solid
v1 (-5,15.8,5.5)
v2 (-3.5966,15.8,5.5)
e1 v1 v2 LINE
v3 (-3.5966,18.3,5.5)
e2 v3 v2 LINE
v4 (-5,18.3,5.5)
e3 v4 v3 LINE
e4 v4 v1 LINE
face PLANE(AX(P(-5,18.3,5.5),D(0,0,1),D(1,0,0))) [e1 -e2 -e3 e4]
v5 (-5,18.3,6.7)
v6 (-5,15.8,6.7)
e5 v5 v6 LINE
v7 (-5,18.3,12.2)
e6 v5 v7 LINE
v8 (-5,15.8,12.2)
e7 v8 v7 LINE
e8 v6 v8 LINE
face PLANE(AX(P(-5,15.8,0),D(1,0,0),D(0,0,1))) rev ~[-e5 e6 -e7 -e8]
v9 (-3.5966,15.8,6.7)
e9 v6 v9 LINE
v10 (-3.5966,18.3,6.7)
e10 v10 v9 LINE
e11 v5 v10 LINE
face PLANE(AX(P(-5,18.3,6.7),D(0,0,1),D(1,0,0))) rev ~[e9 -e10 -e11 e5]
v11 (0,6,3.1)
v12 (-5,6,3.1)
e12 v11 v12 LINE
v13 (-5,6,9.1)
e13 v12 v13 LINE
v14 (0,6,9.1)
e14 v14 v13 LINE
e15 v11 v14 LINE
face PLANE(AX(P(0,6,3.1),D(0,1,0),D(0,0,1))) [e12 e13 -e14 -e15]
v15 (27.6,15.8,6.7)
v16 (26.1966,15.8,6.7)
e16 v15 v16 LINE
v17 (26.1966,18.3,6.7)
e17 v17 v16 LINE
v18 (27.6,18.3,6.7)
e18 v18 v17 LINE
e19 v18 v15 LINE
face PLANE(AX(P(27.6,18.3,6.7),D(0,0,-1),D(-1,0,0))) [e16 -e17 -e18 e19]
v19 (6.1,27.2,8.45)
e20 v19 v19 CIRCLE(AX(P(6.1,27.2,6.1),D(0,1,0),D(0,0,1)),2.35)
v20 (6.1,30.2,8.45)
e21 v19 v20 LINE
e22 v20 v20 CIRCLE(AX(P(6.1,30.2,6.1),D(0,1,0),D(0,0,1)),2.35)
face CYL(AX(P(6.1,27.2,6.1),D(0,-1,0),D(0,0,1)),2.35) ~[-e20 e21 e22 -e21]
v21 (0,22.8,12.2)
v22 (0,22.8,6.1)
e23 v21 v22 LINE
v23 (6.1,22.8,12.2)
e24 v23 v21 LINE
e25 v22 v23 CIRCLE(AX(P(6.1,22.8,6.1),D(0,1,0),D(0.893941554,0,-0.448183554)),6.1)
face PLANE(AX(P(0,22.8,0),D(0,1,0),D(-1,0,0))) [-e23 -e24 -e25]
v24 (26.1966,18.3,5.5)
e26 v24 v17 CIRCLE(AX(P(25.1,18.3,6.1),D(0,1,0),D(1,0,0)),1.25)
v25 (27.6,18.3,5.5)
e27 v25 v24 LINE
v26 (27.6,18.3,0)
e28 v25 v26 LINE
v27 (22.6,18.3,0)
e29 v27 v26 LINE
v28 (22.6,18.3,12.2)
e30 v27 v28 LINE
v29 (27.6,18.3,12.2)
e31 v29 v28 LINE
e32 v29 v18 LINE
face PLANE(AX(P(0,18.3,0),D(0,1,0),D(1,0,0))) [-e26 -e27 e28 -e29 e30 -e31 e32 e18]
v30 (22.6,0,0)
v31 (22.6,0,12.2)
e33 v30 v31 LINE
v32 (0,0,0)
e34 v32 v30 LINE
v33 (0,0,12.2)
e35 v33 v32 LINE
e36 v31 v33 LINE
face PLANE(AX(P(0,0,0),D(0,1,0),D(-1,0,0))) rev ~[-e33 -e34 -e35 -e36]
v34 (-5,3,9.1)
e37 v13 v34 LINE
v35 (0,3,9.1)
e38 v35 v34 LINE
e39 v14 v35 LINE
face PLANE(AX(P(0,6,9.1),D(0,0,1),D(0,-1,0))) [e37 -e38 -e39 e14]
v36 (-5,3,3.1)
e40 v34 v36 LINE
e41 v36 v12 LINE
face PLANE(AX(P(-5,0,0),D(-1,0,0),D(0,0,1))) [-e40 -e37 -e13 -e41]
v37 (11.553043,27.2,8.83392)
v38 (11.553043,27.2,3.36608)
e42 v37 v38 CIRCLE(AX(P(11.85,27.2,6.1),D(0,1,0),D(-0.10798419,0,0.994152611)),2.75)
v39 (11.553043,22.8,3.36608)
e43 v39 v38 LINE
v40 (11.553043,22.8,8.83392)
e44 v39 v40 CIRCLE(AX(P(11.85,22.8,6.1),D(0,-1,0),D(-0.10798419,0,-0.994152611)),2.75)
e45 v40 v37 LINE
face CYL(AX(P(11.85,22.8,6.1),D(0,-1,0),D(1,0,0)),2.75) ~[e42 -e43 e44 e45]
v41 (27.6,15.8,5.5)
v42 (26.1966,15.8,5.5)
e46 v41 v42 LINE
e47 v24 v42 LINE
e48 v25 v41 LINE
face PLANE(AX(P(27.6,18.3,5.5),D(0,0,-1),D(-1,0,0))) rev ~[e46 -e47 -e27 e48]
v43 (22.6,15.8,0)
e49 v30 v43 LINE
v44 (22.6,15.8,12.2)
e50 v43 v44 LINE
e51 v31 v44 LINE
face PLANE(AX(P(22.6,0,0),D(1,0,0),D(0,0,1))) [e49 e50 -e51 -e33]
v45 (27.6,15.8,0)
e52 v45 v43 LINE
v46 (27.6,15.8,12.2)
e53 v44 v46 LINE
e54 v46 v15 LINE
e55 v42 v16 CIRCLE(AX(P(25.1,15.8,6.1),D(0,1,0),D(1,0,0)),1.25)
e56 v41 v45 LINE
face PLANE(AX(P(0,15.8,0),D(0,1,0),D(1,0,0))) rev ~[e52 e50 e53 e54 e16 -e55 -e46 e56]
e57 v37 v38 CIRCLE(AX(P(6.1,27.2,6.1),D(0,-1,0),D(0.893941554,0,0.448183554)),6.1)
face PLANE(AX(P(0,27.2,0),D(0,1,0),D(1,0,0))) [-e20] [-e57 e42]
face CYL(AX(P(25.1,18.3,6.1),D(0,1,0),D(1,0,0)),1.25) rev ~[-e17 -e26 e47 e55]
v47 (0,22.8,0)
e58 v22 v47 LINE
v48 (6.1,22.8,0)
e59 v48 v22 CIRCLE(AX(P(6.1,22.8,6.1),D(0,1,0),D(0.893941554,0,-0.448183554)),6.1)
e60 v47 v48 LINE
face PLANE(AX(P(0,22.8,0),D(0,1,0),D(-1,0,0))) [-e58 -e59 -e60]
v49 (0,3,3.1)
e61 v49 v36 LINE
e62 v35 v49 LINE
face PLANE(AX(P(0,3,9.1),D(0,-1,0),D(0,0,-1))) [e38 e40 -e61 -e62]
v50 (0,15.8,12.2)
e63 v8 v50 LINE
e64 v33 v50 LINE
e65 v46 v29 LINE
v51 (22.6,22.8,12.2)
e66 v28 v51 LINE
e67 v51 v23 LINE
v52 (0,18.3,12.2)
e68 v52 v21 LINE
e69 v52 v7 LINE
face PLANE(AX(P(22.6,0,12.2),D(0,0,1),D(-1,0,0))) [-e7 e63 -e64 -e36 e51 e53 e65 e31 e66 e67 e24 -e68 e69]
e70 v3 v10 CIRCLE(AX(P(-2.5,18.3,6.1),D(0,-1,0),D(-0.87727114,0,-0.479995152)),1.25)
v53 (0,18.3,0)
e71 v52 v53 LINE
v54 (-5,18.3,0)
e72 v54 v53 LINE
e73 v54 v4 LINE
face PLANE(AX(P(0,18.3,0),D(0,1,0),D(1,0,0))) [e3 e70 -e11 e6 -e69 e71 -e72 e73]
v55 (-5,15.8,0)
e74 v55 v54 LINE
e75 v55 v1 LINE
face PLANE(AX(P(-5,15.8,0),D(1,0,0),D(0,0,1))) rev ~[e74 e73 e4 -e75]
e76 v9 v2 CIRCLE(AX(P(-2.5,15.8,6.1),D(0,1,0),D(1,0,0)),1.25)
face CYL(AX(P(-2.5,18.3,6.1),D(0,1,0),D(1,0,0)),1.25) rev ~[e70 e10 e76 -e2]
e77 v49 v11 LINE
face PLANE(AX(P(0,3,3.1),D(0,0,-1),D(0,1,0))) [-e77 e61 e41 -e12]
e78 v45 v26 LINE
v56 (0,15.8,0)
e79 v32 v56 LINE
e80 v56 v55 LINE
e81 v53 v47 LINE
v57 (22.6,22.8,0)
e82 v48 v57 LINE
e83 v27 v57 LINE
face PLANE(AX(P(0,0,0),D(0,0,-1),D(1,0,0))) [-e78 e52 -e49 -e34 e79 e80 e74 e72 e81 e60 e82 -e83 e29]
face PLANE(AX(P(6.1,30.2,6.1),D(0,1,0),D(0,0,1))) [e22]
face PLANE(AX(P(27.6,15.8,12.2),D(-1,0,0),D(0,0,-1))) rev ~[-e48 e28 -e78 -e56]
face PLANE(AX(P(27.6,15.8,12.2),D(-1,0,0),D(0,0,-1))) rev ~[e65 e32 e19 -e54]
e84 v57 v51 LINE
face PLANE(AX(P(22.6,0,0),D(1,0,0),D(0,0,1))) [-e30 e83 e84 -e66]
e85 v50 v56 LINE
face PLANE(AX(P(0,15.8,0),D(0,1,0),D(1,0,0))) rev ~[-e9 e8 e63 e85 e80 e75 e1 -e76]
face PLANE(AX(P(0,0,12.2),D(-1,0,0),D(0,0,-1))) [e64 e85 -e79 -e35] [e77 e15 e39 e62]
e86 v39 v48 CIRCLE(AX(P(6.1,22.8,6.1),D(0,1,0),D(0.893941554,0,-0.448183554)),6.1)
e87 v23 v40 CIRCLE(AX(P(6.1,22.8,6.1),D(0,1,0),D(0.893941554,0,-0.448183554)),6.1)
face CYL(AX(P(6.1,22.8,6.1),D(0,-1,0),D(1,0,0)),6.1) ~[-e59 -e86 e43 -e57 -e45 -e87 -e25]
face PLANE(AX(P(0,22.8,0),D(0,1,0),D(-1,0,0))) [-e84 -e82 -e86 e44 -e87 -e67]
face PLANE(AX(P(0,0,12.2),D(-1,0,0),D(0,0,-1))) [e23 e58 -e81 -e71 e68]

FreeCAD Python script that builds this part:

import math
import FreeCAD as App
import Part
import Sketcher

doc = App.newDocument("Part")
body = doc.addObject("PartDesign::Body", "Body")

# Sketch on XZ plane
sketch1 = body.newObject("Sketcher::SketchObject", "Sketch")
sketch1.AttachmentSupport = (doc.getObject("XZ_Plane"), [""])
sketch1.MapMode = "FlatFace"
sketch1.addGeometry(Part.LineSegment(App.Vector(23, 0, 0), App.Vector(0, 0, 0)), False)
sketch1.addGeometry(Part.LineSegment(App.Vector(0, 0, 0), App.Vector(0, 12, 0)), False)
sketch1.addGeometry(Part.LineSegment(App.Vector(0, 12, 0), App.Vector(23, 12, 0)), False)
sketch1.addGeometry(Part.LineSegment(App.Vector(23, 12, 0), App.Vector(23, 0, 0)), False)
sketch1.addConstraint(Sketcher.Constraint("Coincident", 0, 2, 1, 1))
sketch1.addConstraint(Sketcher.Constraint("Coincident", 1, 2, 2, 1))
sketch1.addConstraint(Sketcher.Constraint("Coincident", 2, 2, 3, 1))
sketch1.addConstraint(Sketcher.Constraint("Coincident", 3, 2, 0, 1))
sketch1.addConstraint(Sketcher.Constraint("Horizontal", 0))
sketch1.addConstraint(Sketcher.Constraint("Vertical", 1))
sketch1.addConstraint(Sketcher.Constraint("Horizontal", 2))
sketch1.addConstraint(Sketcher.Constraint("Vertical", 3))
sketch1.addConstraint(Sketcher.Constraint("Coincident", 0, 2, -1, 1))
sketch1.addConstraint(Sketcher.Constraint("DistanceX", 0, 2, 0, 1, 22.6))
sketch1.addConstraint(Sketcher.Constraint("DistanceY", 1, 1, 1, 2, 12.2))
pad1 = body.newObject("PartDesign::Pad", "Pad")
pad1.Profile = sketch1
pad1.Length = 22.8
pad1.Reversed = True

# Sketch on XZ plane
sketch2 = body.newObject("Sketcher::SketchObject", "Sketch001")
sketch2.AttachmentSupport = (doc.getObject("XZ_Plane"), [""])
sketch2.MapMode = "FlatFace"
sketch2.AttachmentOffset = App.Placement(App.Vector(0, 0, -15.8), App.Rotation())
sketch2.addGeometry(Part.LineSegment(App.Vector(-5, 0, 0), App.Vector(-5, 12, 0)), False)
sketch2.addGeometry(Part.LineSegment(App.Vector(-5, 12, 0), App.Vector(28, 12, 0)), False)
sketch2.addGeometry(Part.LineSegment(App.Vector(28, 12, 0), App.Vector(28, 0, 0)), False)
sketch2.addGeometry(Part.LineSegment(App.Vector(28, 0, 0), App.Vector(-5, 0, 0)), False)
sketch2.addConstraint(Sketcher.Constraint("Coincident", 0, 2, 1, 1))
sketch2.addConstraint(Sketcher.Constraint("Coincident", 1, 2, 2, 1))
sketch2.addConstraint(Sketcher.Constraint("Coincident", 2, 2, 3, 1))
sketch2.addConstraint(Sketcher.Constraint("Coincident", 3, 2, 0, 1))
sketch2.addConstraint(Sketcher.Constraint("Vertical", 0))
sketch2.addConstraint(Sketcher.Constraint("Horizontal", 1))
sketch2.addConstraint(Sketcher.Constraint("Vertical", 2))
sketch2.addConstraint(Sketcher.Constraint("Horizontal", 3))
sketch2.addConstraint(Sketcher.Constraint("PointOnObject", 2, 2, -1))
sketch2.addConstraint(Sketcher.Constraint("DistanceX", 0, 2, -1, 1, 5.0))
sketch2.addConstraint(Sketcher.Constraint("DistanceX", 1, 1, 1, 2, 32.6))
sketch2.addConstraint(Sketcher.Constraint("DistanceY", 0, 1, 0, 2, 12.2))
pad2 = body.newObject("PartDesign::Pad", "Pad001")
pad2.Profile = sketch2
pad2.Length = 2.5
pad2.Reversed = True

# Sketch on XZ plane
sketch3 = body.newObject("Sketcher::SketchObject", "Sketch002")
sketch3.AttachmentSupport = (doc.getObject("XZ_Plane"), [""])
sketch3.MapMode = "FlatFace"
sketch3.AttachmentOffset = App.Placement(App.Vector(0, 0, -22.8), App.Rotation())
sketch3.addGeometry(Part.ArcOfCircle(Part.Circle(App.Vector(11.8, 6.1, 0), App.Vector(0, 0, 1), 2.8), math.radians(-96), math.radians(96)), False)
sketch3.addGeometry(Part.ArcOfCircle(Part.Circle(App.Vector(6.1, 6.1, 0), App.Vector(0, 0, 1), 6.1), math.radians(27), math.radians(333)), False)
sketch3.addConstraint(Sketcher.Constraint("Coincident", 0, 1, 1, 2))
sketch3.addConstraint(Sketcher.Constraint("Coincident", 1, 1, 0, 2))
sketch3.addConstraint(Sketcher.Constraint("Horizontal", 0, 3, 1, 3))
sketch3.addConstraint(Sketcher.Constraint("Radius", 0, 2.75))
sketch3.addConstraint(Sketcher.Constraint("Radius", 1, 6.1))
sketch3.addConstraint(Sketcher.Constraint("DistanceY", -1, 1, 0, 3, 6.1))
sketch3.addConstraint(Sketcher.Constraint("DistanceX", -1, 1, 1, 3, 6.1))
sketch3.addConstraint(Sketcher.Constraint("DistanceX", -1, 1, 0, 3, 11.85))
pad3 = body.newObject("PartDesign::Pad", "Pad002")
pad3.Profile = sketch3
pad3.Length = 4.4
pad3.Reversed = True

# Sketch on XZ plane
sketch4 = body.newObject("Sketcher::SketchObject", "Sketch003")
sketch4.AttachmentSupport = (doc.getObject("XZ_Plane"), [""])
sketch4.MapMode = "FlatFace"
sketch4.AttachmentOffset = App.Placement(App.Vector(0, 0, -27.2), App.Rotation())
sketch4.addGeometry(Part.Circle(App.Vector(6.1, 6.1, 0), App.Vector(0, 0, 1), 2.4), False)
sketch4.addConstraint(Sketcher.Constraint("Diameter", 0, 4.7))
sketch4.addConstraint(Sketcher.Constraint("DistanceX", -1, 1, 0, 3, 6.1))
sketch4.addConstraint(Sketcher.Constraint("DistanceY", -1, 1, 0, 3, 6.1))
pad4 = body.newObject("PartDesign::Pad", "Pad003")
pad4.Profile = sketch4
pad4.Length = 3
pad4.Reversed = True

# Sketch on XZ plane
sketch5 = body.newObject("Sketcher::SketchObject", "Sketch004")
sketch5.AttachmentSupport = (doc.getObject("XZ_Plane"), [""])
sketch5.MapMode = "FlatFace"
sketch5.AttachmentOffset = App.Placement(App.Vector(0, 0, -18.3), App.Rotation())
sketch5.addGeometry(Part.LineSegment(App.Vector(-3.6, 5.5, 0), App.Vector(-5, 5.5, 0)), False)
sketch5.addGeometry(Part.LineSegment(App.Vector(-5, 5.5, 0), App.Vector(-5, 6.7, 0)), False)
sketch5.addGeometry(Part.LineSegment(App.Vector(-5, 6.7, 0), App.Vector(-3.6, 6.7, 0)), False)
sketch5.addGeometry(Part.ArcOfCircle(Part.Circle(App.Vector(-2.5, 6.1, 0), App.Vector(0, 0, 1), 1.2), math.radians(-151), math.radians(151)), False)
sketch5.addGeometry(Part.LineSegment(App.Vector(26.2, 6.7, 0), App.Vector(27.6, 6.7, 0)), False)
sketch5.addGeometry(Part.LineSegment(App.Vector(27.6, 6.7, 0), App.Vector(27.6, 5.5, 0)), False)
sketch5.addGeometry(Part.LineSegment(App.Vector(27.6, 5.5, 0), App.Vector(26.2, 5.5, 0)), False)
sketch5.addGeometry(Part.ArcOfCircle(Part.Circle(App.Vector(25.1, 6.1, 0), App.Vector(0, 0, 1), 1.2), math.radians(29), math.radians(331)), False)
sketch5.addConstraint(Sketcher.Constraint("Coincident", 0, 2, 1, 1))
sketch5.addConstraint(Sketcher.Constraint("Coincident", 1, 2, 2, 1))
sketch5.addConstraint(Sketcher.Constraint("Coincident", 2, 2, 3, 2))
sketch5.addConstraint(Sketcher.Constraint("Coincident", 3, 1, 0, 1))
sketch5.addConstraint(Sketcher.Constraint("Coincident", 4, 2, 5, 1))
sketch5.addConstraint(Sketcher.Constraint("Coincident", 5, 2, 6, 1))
sketch5.addConstraint(Sketcher.Constraint("Coincident", 6, 2, 7, 2))
sketch5.addConstraint(Sketcher.Constraint("Coincident", 7, 1, 4, 1))
sketch5.addConstraint(Sketcher.Constraint("Horizontal", 0))
sketch5.addConstraint(Sketcher.Constraint("Vertical", 1))
sketch5.addConstraint(Sketcher.Constraint("Horizontal", 2))
sketch5.addConstraint(Sketcher.Constraint("Horizontal", 4))
sketch5.addConstraint(Sketcher.Constraint("Vertical", 5))
sketch5.addConstraint(Sketcher.Constraint("Horizontal", 6))
sketch5.addConstraint(Sketcher.Constraint("Equal", 3, 7))
sketch5.addConstraint(Sketcher.Constraint("Horizontal", 3, 3, 7, 3))
sketch5.addConstraint(Sketcher.Constraint("Horizontal", 2, 2, 4, 2))
sketch5.addConstraint(Sketcher.Constraint("Horizontal", 3, 1, 5, 2))
sketch5.addConstraint(Sketcher.Constraint("Vertical", 2, 2, 3, 1))
sketch5.addConstraint(Sketcher.Constraint("Equal", 2, 4))
sketch5.addConstraint(Sketcher.Constraint("Radius", 3, 1.25))
sketch5.addConstraint(Sketcher.Constraint("DistanceX", 3, 3, -1, 1, 2.5))
sketch5.addConstraint(Sketcher.Constraint("DistanceX", 0, 2, 3, 3, 2.5))
sketch5.addConstraint(Sketcher.Constraint("DistanceY", 0, 2, 3, 3, 0.6))
sketch5.addConstraint(Sketcher.Constraint("DistanceY", -1, 1, 3, 3, 6.1))
sketch5.addConstraint(Sketcher.Constraint("DistanceX", -1, 1, 7, 3, 25.1))
pocket1 = body.newObject("PartDesign::Pocket", "Pocket")
pocket1.Profile = sketch5
pocket1.Type = "ThroughAll"
pocket1.Reversed = True

# Sketch on YZ plane
sketch6 = body.newObject("Sketcher::SketchObject", "Sketch005")
sketch6.AttachmentSupport = (doc.getObject("YZ_Plane"), [""])
sketch6.MapMode = "FlatFace"
sketch6.addGeometry(Part.LineSegment(App.Vector(6, 9.1, 0), App.Vector(6, 3.1, 0)), False)
sketch6.addGeometry(Part.LineSegment(App.Vector(6, 3.1, 0), App.Vector(3, 3.1, 0)), False)
sketch6.addGeometry(Part.LineSegment(App.Vector(3, 3.1, 0), App.Vector(3, 9.1, 0)), False)
sketch6.addGeometry(Part.LineSegment(App.Vector(3, 9.1, 0), App.Vector(6, 9.1, 0)), False)
sketch6.addConstraint(Sketcher.Constraint("Coincident", 0, 2, 1, 1))
sketch6.addConstraint(Sketcher.Constraint("Coincident", 1, 2, 2, 1))
sketch6.addConstraint(Sketcher.Constraint("Coincident", 2, 2, 3, 1))
sketch6.addConstraint(Sketcher.Constraint("Coincident", 3, 2, 0, 1))
sketch6.addConstraint(Sketcher.Constraint("Vertical", 0))
sketch6.addConstraint(Sketcher.Constraint("Horizontal", 1))
sketch6.addConstraint(Sketcher.Constraint("Vertical", 2))
sketch6.addConstraint(Sketcher.Constraint("Horizontal", 3))
sketch6.addConstraint(Sketcher.Constraint("DistanceX", 1, 2, 1, 1, 3.0))
sketch6.addConstraint(Sketcher.Constraint("DistanceY", 0, 2, 0, 1, 6.0))
sketch6.addConstraint(Sketcher.Constraint("DistanceX", -1, 1, 0, 2, 6.0))
sketch6.addConstraint(Sketcher.Constraint("DistanceY", -1, 1, 0, 2, 3.1))
pad5 = body.newObject("PartDesign::Pad", "Pad004")
pad5.Profile = sketch6
pad5.Length = 5
pad5.Reversed = True

doc.recompute()
